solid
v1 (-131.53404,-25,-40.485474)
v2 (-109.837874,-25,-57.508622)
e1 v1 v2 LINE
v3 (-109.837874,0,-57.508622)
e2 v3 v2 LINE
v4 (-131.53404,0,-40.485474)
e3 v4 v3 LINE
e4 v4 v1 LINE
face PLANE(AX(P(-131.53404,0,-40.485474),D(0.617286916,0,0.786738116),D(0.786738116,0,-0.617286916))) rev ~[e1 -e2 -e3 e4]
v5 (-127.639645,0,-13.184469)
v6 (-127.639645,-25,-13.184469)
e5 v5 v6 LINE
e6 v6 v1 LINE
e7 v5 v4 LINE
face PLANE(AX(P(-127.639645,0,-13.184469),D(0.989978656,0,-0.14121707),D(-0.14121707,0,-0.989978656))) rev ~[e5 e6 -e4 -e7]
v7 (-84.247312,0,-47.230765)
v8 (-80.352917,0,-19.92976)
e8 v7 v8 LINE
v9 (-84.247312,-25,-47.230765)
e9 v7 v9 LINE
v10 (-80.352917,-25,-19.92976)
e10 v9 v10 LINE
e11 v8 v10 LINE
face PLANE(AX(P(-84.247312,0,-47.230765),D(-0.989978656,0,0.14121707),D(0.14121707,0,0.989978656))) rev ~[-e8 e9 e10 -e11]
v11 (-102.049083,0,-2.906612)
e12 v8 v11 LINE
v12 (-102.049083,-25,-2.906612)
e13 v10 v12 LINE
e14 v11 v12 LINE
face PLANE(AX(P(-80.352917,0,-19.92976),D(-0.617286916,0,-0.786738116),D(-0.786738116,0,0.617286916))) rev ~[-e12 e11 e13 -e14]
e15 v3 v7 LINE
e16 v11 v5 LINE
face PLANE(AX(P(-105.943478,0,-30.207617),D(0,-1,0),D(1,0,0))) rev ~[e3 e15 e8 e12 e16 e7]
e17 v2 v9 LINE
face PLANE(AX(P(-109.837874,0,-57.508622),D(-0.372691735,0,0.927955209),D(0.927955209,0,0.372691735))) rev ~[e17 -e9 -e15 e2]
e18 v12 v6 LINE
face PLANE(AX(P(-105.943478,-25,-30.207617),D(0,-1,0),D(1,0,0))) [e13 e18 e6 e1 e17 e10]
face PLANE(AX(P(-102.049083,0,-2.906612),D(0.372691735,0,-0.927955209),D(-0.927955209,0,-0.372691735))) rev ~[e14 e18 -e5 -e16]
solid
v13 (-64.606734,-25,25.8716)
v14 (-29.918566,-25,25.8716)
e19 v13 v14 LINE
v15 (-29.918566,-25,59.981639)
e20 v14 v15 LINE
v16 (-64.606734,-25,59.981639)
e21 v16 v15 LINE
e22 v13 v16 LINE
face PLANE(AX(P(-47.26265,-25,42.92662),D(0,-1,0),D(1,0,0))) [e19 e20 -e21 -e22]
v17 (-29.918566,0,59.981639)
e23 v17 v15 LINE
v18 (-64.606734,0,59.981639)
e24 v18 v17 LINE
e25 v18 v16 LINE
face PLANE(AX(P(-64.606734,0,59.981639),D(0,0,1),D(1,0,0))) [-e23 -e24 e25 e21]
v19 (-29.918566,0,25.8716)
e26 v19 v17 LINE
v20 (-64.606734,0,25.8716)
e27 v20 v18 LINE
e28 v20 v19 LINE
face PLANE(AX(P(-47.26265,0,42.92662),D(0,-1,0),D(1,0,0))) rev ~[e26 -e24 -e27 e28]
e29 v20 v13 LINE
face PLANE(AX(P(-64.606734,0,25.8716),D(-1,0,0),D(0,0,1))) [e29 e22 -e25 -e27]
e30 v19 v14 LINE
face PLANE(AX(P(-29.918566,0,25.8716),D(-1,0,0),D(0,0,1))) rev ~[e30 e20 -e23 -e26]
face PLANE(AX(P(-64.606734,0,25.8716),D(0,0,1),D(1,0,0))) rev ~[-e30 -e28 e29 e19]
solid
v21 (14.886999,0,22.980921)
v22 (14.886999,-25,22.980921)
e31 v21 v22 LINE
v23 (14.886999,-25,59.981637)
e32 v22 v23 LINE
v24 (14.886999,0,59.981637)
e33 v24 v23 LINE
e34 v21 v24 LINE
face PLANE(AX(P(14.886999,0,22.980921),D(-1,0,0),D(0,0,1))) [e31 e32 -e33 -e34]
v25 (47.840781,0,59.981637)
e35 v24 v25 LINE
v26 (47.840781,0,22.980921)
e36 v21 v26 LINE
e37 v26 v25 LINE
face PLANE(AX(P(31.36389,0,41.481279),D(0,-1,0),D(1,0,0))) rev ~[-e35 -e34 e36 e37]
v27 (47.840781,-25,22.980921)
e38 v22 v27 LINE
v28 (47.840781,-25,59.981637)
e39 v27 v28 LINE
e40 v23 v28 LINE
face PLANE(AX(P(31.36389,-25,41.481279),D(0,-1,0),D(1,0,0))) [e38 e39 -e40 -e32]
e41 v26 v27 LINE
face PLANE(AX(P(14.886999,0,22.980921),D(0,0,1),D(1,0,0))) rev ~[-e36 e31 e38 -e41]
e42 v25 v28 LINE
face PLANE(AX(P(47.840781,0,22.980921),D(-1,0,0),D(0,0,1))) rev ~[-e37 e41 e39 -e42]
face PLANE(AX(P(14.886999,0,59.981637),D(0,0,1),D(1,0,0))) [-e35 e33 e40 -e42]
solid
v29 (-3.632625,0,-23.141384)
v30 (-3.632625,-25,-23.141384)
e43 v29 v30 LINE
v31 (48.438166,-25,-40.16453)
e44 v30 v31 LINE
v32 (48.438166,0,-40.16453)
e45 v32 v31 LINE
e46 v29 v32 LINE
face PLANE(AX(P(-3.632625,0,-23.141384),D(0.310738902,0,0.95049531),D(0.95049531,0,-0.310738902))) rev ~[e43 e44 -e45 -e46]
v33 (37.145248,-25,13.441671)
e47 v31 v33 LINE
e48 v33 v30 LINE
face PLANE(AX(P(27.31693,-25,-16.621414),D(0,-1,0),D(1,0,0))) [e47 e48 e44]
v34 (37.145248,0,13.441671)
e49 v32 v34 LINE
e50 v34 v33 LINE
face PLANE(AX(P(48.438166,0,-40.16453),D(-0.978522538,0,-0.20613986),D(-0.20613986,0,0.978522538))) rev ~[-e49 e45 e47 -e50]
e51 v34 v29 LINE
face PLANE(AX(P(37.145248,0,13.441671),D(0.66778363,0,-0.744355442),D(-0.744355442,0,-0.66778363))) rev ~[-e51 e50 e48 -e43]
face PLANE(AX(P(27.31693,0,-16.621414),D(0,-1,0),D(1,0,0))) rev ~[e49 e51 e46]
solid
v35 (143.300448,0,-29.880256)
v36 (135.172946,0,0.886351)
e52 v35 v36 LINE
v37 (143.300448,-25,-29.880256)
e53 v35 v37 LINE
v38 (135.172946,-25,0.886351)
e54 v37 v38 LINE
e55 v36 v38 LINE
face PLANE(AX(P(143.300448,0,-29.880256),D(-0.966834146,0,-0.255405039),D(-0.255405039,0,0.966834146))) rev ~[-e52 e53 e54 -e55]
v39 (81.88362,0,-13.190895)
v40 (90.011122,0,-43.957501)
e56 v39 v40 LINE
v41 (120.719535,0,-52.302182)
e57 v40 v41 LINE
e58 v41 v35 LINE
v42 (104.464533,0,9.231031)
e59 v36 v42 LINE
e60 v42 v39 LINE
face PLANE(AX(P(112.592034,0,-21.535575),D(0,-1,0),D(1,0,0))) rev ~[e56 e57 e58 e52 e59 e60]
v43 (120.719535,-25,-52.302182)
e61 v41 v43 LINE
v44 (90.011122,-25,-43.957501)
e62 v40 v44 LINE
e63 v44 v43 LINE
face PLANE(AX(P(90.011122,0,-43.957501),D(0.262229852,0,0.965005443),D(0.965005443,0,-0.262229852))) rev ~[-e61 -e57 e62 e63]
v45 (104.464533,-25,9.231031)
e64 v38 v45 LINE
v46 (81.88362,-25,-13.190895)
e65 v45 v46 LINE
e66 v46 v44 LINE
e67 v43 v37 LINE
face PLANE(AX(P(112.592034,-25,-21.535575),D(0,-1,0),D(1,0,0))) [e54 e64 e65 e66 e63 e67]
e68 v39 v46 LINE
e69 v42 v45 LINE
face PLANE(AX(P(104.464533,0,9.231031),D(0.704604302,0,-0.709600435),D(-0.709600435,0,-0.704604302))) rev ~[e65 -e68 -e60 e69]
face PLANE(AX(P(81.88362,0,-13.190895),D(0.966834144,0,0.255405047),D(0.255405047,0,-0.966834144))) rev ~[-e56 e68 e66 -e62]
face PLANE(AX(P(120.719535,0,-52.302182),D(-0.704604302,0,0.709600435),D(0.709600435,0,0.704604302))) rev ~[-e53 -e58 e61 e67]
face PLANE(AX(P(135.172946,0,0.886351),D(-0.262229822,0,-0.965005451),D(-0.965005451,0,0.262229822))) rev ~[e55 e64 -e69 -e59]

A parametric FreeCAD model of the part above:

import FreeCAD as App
import Part
import Sketcher


def add_polygon(sketch, points):
    """Adds a closed chain of lines whose ends are joined by coincident constraints."""
    first, n = sketch.GeometryCount, len(points)
    for a, b in zip(points, points[1:] + points[:1]):
        sketch.addGeometry(Part.LineSegment(App.Vector(*a, 0), App.Vector(*b, 0)), False)
    for i in range(n):
        sketch.addConstraint(Sketcher.Constraint("Coincident", first + i, 2, first + (i + 1) % n, 1))

doc = App.newDocument("Part")
params = doc.addObject("Spreadsheet::Sheet", "Params")
for row, (alias, value) in enumerate([
    ("pad1_length", "25 mm"),
    ("pad2_length", "25 mm"),
    ("pad3_length", "25 mm"),
], start=1):
    params.set(f"A{row}", alias)
    params.set(f"B{row}", "=" + value)
    params.setAlias(f"B{row}", alias)

body = doc.addObject("PartDesign::Body", "Body")
body.AllowCompound = True

sketch1 = doc.addObject("Sketcher::SketchObject", "Sketch")
body.addObject(sketch1)
sketch1.AttachmentSupport = (doc.XZ_Plane, [""])
sketch1.MapMode = "FlatFace"
add_polygon(sketch1, [(-65, 60), (-65, 26), (-30, 26), (-30, 60)])
add_polygon(sketch1, [(15, 60), (15, 23), (48, 23), (48, 60)])
sketch1.addConstraint(Sketcher.Constraint("Vertical", 0))
sketch1.addConstraint(Sketcher.Constraint("Horizontal", 1))
sketch1.addConstraint(Sketcher.Constraint("Vertical", 2))
sketch1.addConstraint(Sketcher.Constraint("Horizontal", 3))
sketch1.addConstraint(Sketcher.Constraint("Vertical", 4))
sketch1.addConstraint(Sketcher.Constraint("Horizontal", 5))
sketch1.addConstraint(Sketcher.Constraint("Vertical", 6))
sketch1.addConstraint(Sketcher.Constraint("Horizontal", 7))
sketch1.addConstraint(Sketcher.Constraint("DistanceX", -1, 1, 4, 2, 14.886999))
sketch1.addConstraint(Sketcher.Constraint("DistanceX", 1, 1, 1, 2, 34.688168))
sketch1.addConstraint(Sketcher.Constraint("DistanceY", 0, 2, 0, 1, 34.110039))
sketch1.addConstraint(Sketcher.Constraint("DistanceY", -1, 1, 0, 2, 25.8716))
sketch1.addConstraint(Sketcher.Constraint("DistanceX", 5, 1, 5, 2, 32.953782))
sketch1.addConstraint(Sketcher.Constraint("DistanceY", 4, 2, 4, 1, 37.000716))
sketch1.addConstraint(Sketcher.Constraint("DistanceY", -1, 1, 4, 2, 22.980921))
sketch1.addConstraint(Sketcher.Constraint("DistanceX", 0, 2, -1, 1, 64.606734))
pad1 = doc.addObject("PartDesign::Pad", "Pad")
body.addObject(pad1)
pad1.Profile = sketch1
pad1.setExpression("Length", "Params.pad1_length")
body2 = doc.addObject("PartDesign::Body", "Body001")

sketch2 = doc.addObject("Sketcher::SketchObject", "Sketch001")
body2.addObject(sketch2)
sketch2.AttachmentSupport = (doc.getObject("XZ_Plane001"), [""])
sketch2.MapMode = "FlatFace"
add_polygon(sketch2, [(-132, -40), (-110, -58), (-84, -47), (-80, -20), (-102, -3), (-128, -13)])
sketch2.addConstraint(Sketcher.Constraint("Parallel", 0, 3))
sketch2.addConstraint(Sketcher.Constraint("Parallel", 1, 4))
sketch2.addConstraint(Sketcher.Constraint("Parallel", 2, 5))
sketch2.addConstraint(Sketcher.Constraint("Equal", 0, 1))
sketch2.addConstraint(Sketcher.Constraint("Equal", 1, 2))
sketch2.addConstraint(Sketcher.Constraint("Equal", 2, 3))
sketch2.addConstraint(Sketcher.Constraint("DistanceX", 1, 2, -1, 1, 84.247312))
sketch2.addConstraint(Sketcher.Constraint("DistanceY", 2, 2, -1, 1, 19.92976))
sketch2.addConstraint(Sketcher.Constraint("DistanceY", 3, 2, -1, 1, 2.906612))
sketch2.addConstraint(Sketcher.Constraint("DistanceY", 4, 2, -1, 1, 13.184469))
sketch2.addConstraint(Sketcher.Constraint("DistanceX", 5, 2, -1, 1, 131.53404))
sketch2.addConstraint(Sketcher.Constraint("DistanceX", 3, 2, 1, 2, 17.801771))
pad2 = doc.addObject("PartDesign::Pad", "Pad001")
body2.addObject(pad2)
pad2.Profile = sketch2
pad2.setExpression("Length", "Params.pad2_length")
body3 = doc.addObject("PartDesign::Body", "Body002")
body3.AllowCompound = True

sketch3 = doc.addObject("Sketcher::SketchObject", "Sketch002")
body3.addObject(sketch3)
sketch3.AttachmentSupport = (doc.getObject("XZ_Plane002"), [""])
sketch3.MapMode = "FlatFace"
add_polygon(sketch3, [(-4, -23), (48, -40), (37, 13)])
add_polygon(sketch3, [(90, -44), (121, -52), (143, -30), (135, 1), (104, 9), (82, -13)])
sketch3.addConstraint(Sketcher.Constraint("Parallel", 3, 6))
sketch3.addConstraint(Sketcher.Constraint("Parallel", 4, 7))
sketch3.addConstraint(Sketcher.Constraint("Parallel", 5, 8))
sketch3.addConstraint(Sketcher.Constraint("Equal", 0, 1))
sketch3.addConstraint(Sketcher.Constraint("Equal", 1, 2))
sketch3.addConstraint(Sketcher.Constraint("Equal", 3, 4))
sketch3.addConstraint(Sketcher.Constraint("Equal", 4, 5))
sketch3.addConstraint(Sketcher.Constraint("Equal", 5, 6))
sketch3.addConstraint(Sketcher.Constraint("DistanceX", 6, 2, 3, 2, 16.255002))
sketch3.addConstraint(Sketcher.Constraint("DistanceY", 8, 2, -1, 1, 43.957501))
sketch3.addConstraint(Sketcher.Constraint("DistanceY", 0, 2, 1, 2, 53.606201))
sketch3.addConstraint(Sketcher.Constraint("DistanceY", 3, 2, 2, 2, 29.160798))
sketch3.addConstraint(Sketcher.Constraint("DistanceX", 1, 2, 4, 2, 106.1552))
sketch3.addConstraint(Sketcher.Constraint("DistanceX", 5, 2, 4, 2, 8.127502))
sketch3.addConstraint(Sketcher.Constraint("Distance", 3, 31.82201))
sketch3.addConstraint(Sketcher.Constraint("DistanceY", 0, 2, -1, 1, 40.16453))
sketch3.addConstraint(Sketcher.Constraint("DistanceX", -1, 1, 1, 2, 37.145248))
sketch3.addConstraint(Sketcher.Constraint("DistanceY", -1, 1, 5, 2, 0.886351))
pad3 = doc.addObject("PartDesign::Pad", "Pad002")
body3.addObject(pad3)
pad3.Profile = sketch3
pad3.setExpression("Length", "Params.pad3_length")

doc.recompute()
